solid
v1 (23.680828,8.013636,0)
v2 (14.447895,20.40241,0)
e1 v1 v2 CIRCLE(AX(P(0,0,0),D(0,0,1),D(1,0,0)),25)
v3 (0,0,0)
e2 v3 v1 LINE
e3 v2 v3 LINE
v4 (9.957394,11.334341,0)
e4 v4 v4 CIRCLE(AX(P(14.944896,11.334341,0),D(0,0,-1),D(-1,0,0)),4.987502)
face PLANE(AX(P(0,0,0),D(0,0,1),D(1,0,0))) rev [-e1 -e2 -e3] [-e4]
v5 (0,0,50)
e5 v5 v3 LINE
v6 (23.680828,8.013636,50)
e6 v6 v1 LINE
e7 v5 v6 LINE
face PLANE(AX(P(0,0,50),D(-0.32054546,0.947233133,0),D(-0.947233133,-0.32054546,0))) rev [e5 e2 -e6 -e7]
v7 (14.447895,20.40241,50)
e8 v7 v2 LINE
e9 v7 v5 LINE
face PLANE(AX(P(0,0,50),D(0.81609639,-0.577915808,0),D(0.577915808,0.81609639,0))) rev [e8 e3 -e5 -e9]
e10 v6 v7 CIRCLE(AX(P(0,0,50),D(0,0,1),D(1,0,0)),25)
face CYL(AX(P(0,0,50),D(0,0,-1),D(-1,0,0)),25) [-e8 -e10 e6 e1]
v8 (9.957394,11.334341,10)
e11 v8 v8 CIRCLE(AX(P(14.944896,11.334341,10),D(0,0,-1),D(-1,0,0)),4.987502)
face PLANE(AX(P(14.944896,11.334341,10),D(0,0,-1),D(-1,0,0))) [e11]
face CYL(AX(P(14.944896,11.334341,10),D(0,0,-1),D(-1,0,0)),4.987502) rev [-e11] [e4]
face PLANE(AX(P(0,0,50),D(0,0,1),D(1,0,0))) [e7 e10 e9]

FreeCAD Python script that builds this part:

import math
import FreeCAD as App
import Part
import Sketcher

V = App.Vector

doc = App.newDocument("Part")
body = doc.addObject("PartDesign::Body", "Body")

# Sketch on XY plane
sketch1 = body.newObject("Sketcher::SketchObject", "Sketch")
sketch1.AttachmentSupport = (doc.getObject("XY_Plane"), [""])
sketch1.MapMode = "FlatFace"
sketch1.addGeometry([
    Part.LineSegment(V(14, 20, 0), V(0, 0, 0)),
    Part.LineSegment(V(0, 0, 0), V(24, 8, 0)),
    Part.ArcOfCircle(Part.Circle(V(0, 0, 0), V(0, 0, 1), 25), math.radians(19), math.radians(55)),
], False)
sketch1.addConstraint([
    Sketcher.Constraint("Coincident", 0, 2, 1, 1),
    Sketcher.Constraint("Coincident", 1, 2, 2, 1),
    Sketcher.Constraint("Coincident", 2, 2, 0, 1),
    Sketcher.Constraint("Coincident", 2, 3, -1, 1),
    Sketcher.Constraint("Coincident", 0, 2, -1, 1),
    Sketcher.Constraint("Radius", 2, 25.0),
    Sketcher.Constraint("DistanceX", -1, 1, 1, 2, 23.680828),
    Sketcher.Constraint("DistanceY", -1, 1, 2, 2, 20.40241),
])
pad1 = body.newObject("PartDesign::Pad", "Pad")
pad1.Profile = sketch1
pad1.Length = 50

# Sketch on XY plane
sketch2 = body.newObject("Sketcher::SketchObject", "Sketch001")
sketch2.AttachmentSupport = (doc.getObject("XY_Plane"), [""])
sketch2.MapMode = "FlatFace"
sketch2.addGeometry(Part.Circle(V(14.9, 11.3, 0), V(0, 0, 1), 5), False)
sketch2.addConstraint([
    Sketcher.Constraint("Diameter", 0, 9.975004),
    Sketcher.Constraint("DistanceY", -1, 1, 0, 3, 11.334341),
    Sketcher.Constraint("DistanceX", -1, 1, 0, 3, 14.944896),
])
pocket1 = body.newObject("PartDesign::Pocket", "Pocket")
pocket1.Profile = sketch2
pocket1.Length = 10
pocket1.Reversed = True

doc.recompute()
